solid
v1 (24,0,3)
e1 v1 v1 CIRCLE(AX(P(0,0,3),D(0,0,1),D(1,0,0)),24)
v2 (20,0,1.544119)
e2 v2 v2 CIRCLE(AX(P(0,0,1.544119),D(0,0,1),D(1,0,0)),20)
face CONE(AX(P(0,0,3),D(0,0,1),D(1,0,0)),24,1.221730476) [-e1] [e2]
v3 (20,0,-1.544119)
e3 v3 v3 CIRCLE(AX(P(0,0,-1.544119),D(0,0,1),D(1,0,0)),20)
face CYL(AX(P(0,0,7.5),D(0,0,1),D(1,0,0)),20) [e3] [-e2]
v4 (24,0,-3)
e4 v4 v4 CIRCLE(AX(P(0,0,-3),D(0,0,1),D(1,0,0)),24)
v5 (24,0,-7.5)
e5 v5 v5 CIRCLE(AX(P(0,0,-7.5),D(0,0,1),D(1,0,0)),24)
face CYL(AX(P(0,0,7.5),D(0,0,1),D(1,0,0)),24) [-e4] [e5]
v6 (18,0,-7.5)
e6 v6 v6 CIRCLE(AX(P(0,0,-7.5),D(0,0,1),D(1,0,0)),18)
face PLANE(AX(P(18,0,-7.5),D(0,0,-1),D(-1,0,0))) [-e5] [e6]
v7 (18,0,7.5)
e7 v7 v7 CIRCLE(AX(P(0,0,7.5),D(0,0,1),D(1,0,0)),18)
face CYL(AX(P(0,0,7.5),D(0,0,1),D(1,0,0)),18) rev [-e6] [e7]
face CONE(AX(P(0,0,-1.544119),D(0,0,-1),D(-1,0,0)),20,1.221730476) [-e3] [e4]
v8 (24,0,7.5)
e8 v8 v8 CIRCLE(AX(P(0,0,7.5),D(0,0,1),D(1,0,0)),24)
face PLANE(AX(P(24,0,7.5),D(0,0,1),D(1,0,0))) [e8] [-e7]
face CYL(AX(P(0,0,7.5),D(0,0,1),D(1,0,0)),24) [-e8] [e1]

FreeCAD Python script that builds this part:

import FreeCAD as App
import Part
import Sketcher
Q = App.Units.Quantity


def add_polygon(sketch, points):
    """Adds a closed chain of lines whose ends are joined by coincident constraints."""
    first, n = sketch.GeometryCount, len(points)
    for a, b in zip(points, points[1:] + points[:1]):
        sketch.addGeometry(Part.LineSegment(App.Vector(*a, 0), App.Vector(*b, 0)), False)
    for i in range(n):
        sketch.addConstraint(Sketcher.Constraint("Coincident", first + i, 2, first + (i + 1) % n, 1))

doc = App.newDocument("Part")
body = doc.addObject("PartDesign::Body", "Body")

# Sketch on XZ plane
sketch1 = body.newObject("Sketcher::SketchObject", "Sketch")
sketch1.AttachmentSupport = (doc.getObject("XZ_Plane"), [""])
sketch1.MapMode = "FlatFace"
add_polygon(sketch1, [(18, -7.5), (18, 7.5), (24, 7.5), (24, 3), (20, 1.5), (20, -1.5), (24, -3), (24, -7.5)])  # lines 0-7
sketch1.addConstraint(Sketcher.Constraint("Vertical", 0))
sketch1.addConstraint(Sketcher.Constraint("Horizontal", 1))
sketch1.addConstraint(Sketcher.Constraint("Vertical", 2))
sketch1.addConstraint(Sketcher.Constraint("Vertical", 4))
sketch1.addConstraint(Sketcher.Constraint("Vertical", 6))
sketch1.addConstraint(Sketcher.Constraint("Horizontal", 7))
sketch1.addConstraint(Sketcher.Constraint("Symmetric", 2, 2, 5, 2, -1))
sketch1.addConstraint(Sketcher.Constraint("Equal", 2, 6))
sketch1.addConstraint(Sketcher.Constraint("Equal", 3, 5))
sketch1.addConstraint(Sketcher.Constraint("DistanceX", 1, 1, 1, 2, Q("6 mm")))
sketch1.addConstraint(Sketcher.Constraint("DistanceY", 0, 1, 0, 2, Q("15 mm")))
sketch1.addConstraint(Sketcher.Constraint("Angle", 3, Q("-160 deg")))
sketch1.addConstraint(Sketcher.Constraint("DistanceY", 2, 2, 2, 1, Q("4.5 mm")))
sketch1.addConstraint(Sketcher.Constraint("DistanceX", -1, 1, 0, 2, Q("18 mm")))
sketch1.addConstraint(Sketcher.Constraint("DistanceX", -1, 1, 3, 2, Q("20 mm")))
revolution = body.newObject("PartDesign::Revolution", "Revolution")
revolution.Profile = sketch1
revolution.ReferenceAxis = (sketch1, ["V_Axis"])
revolution.Angle = 360

doc.recompute()
